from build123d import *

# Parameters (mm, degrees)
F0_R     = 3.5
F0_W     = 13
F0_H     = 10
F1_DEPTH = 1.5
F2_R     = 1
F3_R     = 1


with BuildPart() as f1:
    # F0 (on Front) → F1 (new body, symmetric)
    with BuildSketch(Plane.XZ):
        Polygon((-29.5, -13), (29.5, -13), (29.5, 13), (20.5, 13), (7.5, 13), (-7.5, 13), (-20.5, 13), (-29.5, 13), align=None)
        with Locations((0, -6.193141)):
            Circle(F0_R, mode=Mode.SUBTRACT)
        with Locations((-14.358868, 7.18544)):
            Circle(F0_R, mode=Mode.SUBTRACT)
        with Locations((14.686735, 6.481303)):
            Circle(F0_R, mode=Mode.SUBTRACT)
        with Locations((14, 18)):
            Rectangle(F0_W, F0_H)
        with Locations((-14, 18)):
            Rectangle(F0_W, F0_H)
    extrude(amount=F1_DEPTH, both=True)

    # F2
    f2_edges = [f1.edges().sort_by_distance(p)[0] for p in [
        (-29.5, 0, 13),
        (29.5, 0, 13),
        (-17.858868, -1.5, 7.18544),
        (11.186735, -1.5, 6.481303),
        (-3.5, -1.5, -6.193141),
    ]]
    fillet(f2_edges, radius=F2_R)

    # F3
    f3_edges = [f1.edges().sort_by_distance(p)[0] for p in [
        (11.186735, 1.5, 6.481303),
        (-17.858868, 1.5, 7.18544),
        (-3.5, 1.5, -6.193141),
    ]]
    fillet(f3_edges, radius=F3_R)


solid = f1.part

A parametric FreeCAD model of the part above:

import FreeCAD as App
import Part
import Sketcher
from FreeCAD import Vector
Q = App.Units.Quantity


def edges_at(feature, points):
    """Names of the edges that pass closest to the given points."""
    edges = feature.Shape.Edges
    near = lambda p: min(range(len(edges)), key=lambda i: edges[i].distToShape(Part.Vertex(*p))[0])
    return sorted({f"Edge{near(p) + 1}" for p in points})

doc = App.newDocument("Part")
body = doc.addObject("PartDesign::Body", "Body")

# Sketch on XZ plane
sketch1 = doc.addObject("Sketcher::SketchObject", "Sketch")
body.addObject(sketch1)
sketch1.AttachmentSupport = (doc.XZ_Plane, [""])
sketch1.MapMode = "FlatFace"
sketch1.addGeometry(Part.LineSegment(Vector(-29.5, -13, 0), Vector(29.5, -13, 0)), False)
sketch1.addGeometry(Part.LineSegment(Vector(29.5, -13, 0), Vector(29.5, 13, 0)), False)
sketch1.addGeometry(Part.LineSegment(Vector(29.5, 13, 0), Vector(20.5, 13, 0)), False)
sketch1.addGeometry(Part.LineSegment(Vector(20.5, 13, 0), Vector(20.5, 23, 0)), False)
sketch1.addGeometry(Part.LineSegment(Vector(20.5, 23, 0), Vector(7.5, 23, 0)), False)
sketch1.addGeometry(Part.LineSegment(Vector(7.5, 23, 0), Vector(7.5, 13, 0)), False)
sketch1.addGeometry(Part.LineSegment(Vector(7.5, 13, 0), Vector(-7.5, 13, 0)), False)
sketch1.addGeometry(Part.LineSegment(Vector(-7.5, 13, 0), Vector(-7.5, 23, 0)), False)
sketch1.addGeometry(Part.LineSegment(Vector(-7.5, 23, 0), Vector(-20.5, 23, 0)), False)
sketch1.addGeometry(Part.LineSegment(Vector(-20.5, 23, 0), Vector(-20.5, 13, 0)), False)
sketch1.addGeometry(Part.LineSegment(Vector(-20.5, 13, 0), Vector(-29.5, 13, 0)), False)
sketch1.addGeometry(Part.LineSegment(Vector(-29.5, 13, 0), Vector(-29.5, -13, 0)), False)
sketch1.addGeometry(Part.Circle(Vector(0, -6.2, 0), Vector(0, 0, 1), 3.5), False)
sketch1.addGeometry(Part.Circle(Vector(-14.4, 7.2, 0), Vector(0, 0, 1), 3.5), False)
sketch1.addGeometry(Part.Circle(Vector(14.7, 6.5, 0), Vector(0, 0, 1), 3.5), False)
sketch1.addConstraint(Sketcher.Constraint("Coincident", 0, 2, 1, 1))
sketch1.addConstraint(Sketcher.Constraint("Coincident", 1, 2, 2, 1))
sketch1.addConstraint(Sketcher.Constraint("Coincident", 2, 2, 3, 1))
sketch1.addConstraint(Sketcher.Constraint("Coincident", 3, 2, 4, 1))
sketch1.addConstraint(Sketcher.Constraint("Coincident", 4, 2, 5, 1))
sketch1.addConstraint(Sketcher.Constraint("Coincident", 5, 2, 6, 1))
sketch1.addConstraint(Sketcher.Constraint("Coincident", 6, 2, 7, 1))
sketch1.addConstraint(Sketcher.Constraint("Coincident", 7, 2, 8, 1))
sketch1.addConstraint(Sketcher.Constraint("Coincident", 8, 2, 9, 1))
sketch1.addConstraint(Sketcher.Constraint("Coincident", 9, 2, 10, 1))
sketch1.addConstraint(Sketcher.Constraint("Coincident", 10, 2, 11, 1))
sketch1.addConstraint(Sketcher.Constraint("Coincident", 11, 2, 0, 1))
sketch1.addConstraint(Sketcher.Constraint("Horizontal", 0))
sketch1.addConstraint(Sketcher.Constraint("Vertical", 1))
sketch1.addConstraint(Sketcher.Constraint("Horizontal", 2))
sketch1.addConstraint(Sketcher.Constraint("Vertical", 3))
sketch1.addConstraint(Sketcher.Constraint("Horizontal", 4))
sketch1.addConstraint(Sketcher.Constraint("Vertical", 5))
sketch1.addConstraint(Sketcher.Constraint("Horizontal", 6))
sketch1.addConstraint(Sketcher.Constraint("Vertical", 7))
sketch1.addConstraint(Sketcher.Constraint("Horizontal", 8))
sketch1.addConstraint(Sketcher.Constraint("Vertical", 9))
sketch1.addConstraint(Sketcher.Constraint("Horizontal", 10))
sketch1.addConstraint(Sketcher.Constraint("Vertical", 11))
sketch1.addConstraint(Sketcher.Constraint("Equal", 12, 13))
sketch1.addConstraint(Sketcher.Constraint("Equal", 13, 14))
sketch1.addConstraint(Sketcher.Constraint("Symmetric", 0, 2, 10, 2, -1, 1))
sketch1.addConstraint(Sketcher.Constraint("Symmetric", 4, 2, 7, 2, -2))
sketch1.addConstraint(Sketcher.Constraint("Symmetric", 2, 2, 9, 2, -2))
sketch1.addConstraint(Sketcher.Constraint("PointOnObject", 12, 3, -2))
sketch1.addConstraint(Sketcher.Constraint("Horizontal", 2, 2, 5, 2))
sketch1.addConstraint(Sketcher.Constraint("Diameter", 12, Q("7 mm")))
sketch1.addConstraint(Sketcher.Constraint("DistanceX", 0, 1, 0, 2, Q("59 mm")))
sketch1.addConstraint(Sketcher.Constraint("DistanceX", 2, 2, 2, 1, Q("9 mm")))
sketch1.addConstraint(Sketcher.Constraint("DistanceX", 4, 2, 4, 1, Q("13 mm")))
sketch1.addConstraint(Sketcher.Constraint("DistanceY", 1, 1, 1, 2, Q("26 mm")))
sketch1.addConstraint(Sketcher.Constraint("DistanceY", 3, 1, 3, 2, Q("10 mm")))
sketch1.addConstraint(Sketcher.Constraint("DistanceY", 12, 3, -1, 1, Q("6.193141 mm")))
sketch1.addConstraint(Sketcher.Constraint("DistanceY", -1, 1, 13, 3, Q("7.18544 mm")))
sketch1.addConstraint(Sketcher.Constraint("DistanceX", 13, 3, 4, 2, Q("21.858868 mm")))
sketch1.addConstraint(Sketcher.Constraint("DistanceX", -1, 1, 14, 3, Q("14.686735 mm")))
sketch1.addConstraint(Sketcher.Constraint("DistanceY", -1, 1, 14, 3, Q("6.481303 mm")))
pad1 = doc.addObject("PartDesign::Pad", "Pad")
body.addObject(pad1)
pad1.Profile = sketch1
pad1.Length = 3
pad1.Midplane = True
doc.recompute()

fillet = doc.addObject("PartDesign::Fillet", "Fillet")
body.addObject(fillet)
fillet.Base = (pad1, edges_at(pad1, [
    (-29.5, 0, 13),
    (29.5, 0, 13),
    (-17.859, -1.5, 7.185),
    (11.187, -1.5, 6.481),
    (-3.5, -1.5, -6.193),
]))
fillet.Radius = 1
doc.recompute()

fillet2 = doc.addObject("PartDesign::Fillet", "Fillet001")
body.addObject(fillet2)
fillet2.Base = (fillet, edges_at(fillet, [(11.187, 1.5, 6.481), (-17.859, 1.5, 7.185), (-3.5, 1.5, -6.193)]))
fillet2.Radius = 1

doc.recompute()
